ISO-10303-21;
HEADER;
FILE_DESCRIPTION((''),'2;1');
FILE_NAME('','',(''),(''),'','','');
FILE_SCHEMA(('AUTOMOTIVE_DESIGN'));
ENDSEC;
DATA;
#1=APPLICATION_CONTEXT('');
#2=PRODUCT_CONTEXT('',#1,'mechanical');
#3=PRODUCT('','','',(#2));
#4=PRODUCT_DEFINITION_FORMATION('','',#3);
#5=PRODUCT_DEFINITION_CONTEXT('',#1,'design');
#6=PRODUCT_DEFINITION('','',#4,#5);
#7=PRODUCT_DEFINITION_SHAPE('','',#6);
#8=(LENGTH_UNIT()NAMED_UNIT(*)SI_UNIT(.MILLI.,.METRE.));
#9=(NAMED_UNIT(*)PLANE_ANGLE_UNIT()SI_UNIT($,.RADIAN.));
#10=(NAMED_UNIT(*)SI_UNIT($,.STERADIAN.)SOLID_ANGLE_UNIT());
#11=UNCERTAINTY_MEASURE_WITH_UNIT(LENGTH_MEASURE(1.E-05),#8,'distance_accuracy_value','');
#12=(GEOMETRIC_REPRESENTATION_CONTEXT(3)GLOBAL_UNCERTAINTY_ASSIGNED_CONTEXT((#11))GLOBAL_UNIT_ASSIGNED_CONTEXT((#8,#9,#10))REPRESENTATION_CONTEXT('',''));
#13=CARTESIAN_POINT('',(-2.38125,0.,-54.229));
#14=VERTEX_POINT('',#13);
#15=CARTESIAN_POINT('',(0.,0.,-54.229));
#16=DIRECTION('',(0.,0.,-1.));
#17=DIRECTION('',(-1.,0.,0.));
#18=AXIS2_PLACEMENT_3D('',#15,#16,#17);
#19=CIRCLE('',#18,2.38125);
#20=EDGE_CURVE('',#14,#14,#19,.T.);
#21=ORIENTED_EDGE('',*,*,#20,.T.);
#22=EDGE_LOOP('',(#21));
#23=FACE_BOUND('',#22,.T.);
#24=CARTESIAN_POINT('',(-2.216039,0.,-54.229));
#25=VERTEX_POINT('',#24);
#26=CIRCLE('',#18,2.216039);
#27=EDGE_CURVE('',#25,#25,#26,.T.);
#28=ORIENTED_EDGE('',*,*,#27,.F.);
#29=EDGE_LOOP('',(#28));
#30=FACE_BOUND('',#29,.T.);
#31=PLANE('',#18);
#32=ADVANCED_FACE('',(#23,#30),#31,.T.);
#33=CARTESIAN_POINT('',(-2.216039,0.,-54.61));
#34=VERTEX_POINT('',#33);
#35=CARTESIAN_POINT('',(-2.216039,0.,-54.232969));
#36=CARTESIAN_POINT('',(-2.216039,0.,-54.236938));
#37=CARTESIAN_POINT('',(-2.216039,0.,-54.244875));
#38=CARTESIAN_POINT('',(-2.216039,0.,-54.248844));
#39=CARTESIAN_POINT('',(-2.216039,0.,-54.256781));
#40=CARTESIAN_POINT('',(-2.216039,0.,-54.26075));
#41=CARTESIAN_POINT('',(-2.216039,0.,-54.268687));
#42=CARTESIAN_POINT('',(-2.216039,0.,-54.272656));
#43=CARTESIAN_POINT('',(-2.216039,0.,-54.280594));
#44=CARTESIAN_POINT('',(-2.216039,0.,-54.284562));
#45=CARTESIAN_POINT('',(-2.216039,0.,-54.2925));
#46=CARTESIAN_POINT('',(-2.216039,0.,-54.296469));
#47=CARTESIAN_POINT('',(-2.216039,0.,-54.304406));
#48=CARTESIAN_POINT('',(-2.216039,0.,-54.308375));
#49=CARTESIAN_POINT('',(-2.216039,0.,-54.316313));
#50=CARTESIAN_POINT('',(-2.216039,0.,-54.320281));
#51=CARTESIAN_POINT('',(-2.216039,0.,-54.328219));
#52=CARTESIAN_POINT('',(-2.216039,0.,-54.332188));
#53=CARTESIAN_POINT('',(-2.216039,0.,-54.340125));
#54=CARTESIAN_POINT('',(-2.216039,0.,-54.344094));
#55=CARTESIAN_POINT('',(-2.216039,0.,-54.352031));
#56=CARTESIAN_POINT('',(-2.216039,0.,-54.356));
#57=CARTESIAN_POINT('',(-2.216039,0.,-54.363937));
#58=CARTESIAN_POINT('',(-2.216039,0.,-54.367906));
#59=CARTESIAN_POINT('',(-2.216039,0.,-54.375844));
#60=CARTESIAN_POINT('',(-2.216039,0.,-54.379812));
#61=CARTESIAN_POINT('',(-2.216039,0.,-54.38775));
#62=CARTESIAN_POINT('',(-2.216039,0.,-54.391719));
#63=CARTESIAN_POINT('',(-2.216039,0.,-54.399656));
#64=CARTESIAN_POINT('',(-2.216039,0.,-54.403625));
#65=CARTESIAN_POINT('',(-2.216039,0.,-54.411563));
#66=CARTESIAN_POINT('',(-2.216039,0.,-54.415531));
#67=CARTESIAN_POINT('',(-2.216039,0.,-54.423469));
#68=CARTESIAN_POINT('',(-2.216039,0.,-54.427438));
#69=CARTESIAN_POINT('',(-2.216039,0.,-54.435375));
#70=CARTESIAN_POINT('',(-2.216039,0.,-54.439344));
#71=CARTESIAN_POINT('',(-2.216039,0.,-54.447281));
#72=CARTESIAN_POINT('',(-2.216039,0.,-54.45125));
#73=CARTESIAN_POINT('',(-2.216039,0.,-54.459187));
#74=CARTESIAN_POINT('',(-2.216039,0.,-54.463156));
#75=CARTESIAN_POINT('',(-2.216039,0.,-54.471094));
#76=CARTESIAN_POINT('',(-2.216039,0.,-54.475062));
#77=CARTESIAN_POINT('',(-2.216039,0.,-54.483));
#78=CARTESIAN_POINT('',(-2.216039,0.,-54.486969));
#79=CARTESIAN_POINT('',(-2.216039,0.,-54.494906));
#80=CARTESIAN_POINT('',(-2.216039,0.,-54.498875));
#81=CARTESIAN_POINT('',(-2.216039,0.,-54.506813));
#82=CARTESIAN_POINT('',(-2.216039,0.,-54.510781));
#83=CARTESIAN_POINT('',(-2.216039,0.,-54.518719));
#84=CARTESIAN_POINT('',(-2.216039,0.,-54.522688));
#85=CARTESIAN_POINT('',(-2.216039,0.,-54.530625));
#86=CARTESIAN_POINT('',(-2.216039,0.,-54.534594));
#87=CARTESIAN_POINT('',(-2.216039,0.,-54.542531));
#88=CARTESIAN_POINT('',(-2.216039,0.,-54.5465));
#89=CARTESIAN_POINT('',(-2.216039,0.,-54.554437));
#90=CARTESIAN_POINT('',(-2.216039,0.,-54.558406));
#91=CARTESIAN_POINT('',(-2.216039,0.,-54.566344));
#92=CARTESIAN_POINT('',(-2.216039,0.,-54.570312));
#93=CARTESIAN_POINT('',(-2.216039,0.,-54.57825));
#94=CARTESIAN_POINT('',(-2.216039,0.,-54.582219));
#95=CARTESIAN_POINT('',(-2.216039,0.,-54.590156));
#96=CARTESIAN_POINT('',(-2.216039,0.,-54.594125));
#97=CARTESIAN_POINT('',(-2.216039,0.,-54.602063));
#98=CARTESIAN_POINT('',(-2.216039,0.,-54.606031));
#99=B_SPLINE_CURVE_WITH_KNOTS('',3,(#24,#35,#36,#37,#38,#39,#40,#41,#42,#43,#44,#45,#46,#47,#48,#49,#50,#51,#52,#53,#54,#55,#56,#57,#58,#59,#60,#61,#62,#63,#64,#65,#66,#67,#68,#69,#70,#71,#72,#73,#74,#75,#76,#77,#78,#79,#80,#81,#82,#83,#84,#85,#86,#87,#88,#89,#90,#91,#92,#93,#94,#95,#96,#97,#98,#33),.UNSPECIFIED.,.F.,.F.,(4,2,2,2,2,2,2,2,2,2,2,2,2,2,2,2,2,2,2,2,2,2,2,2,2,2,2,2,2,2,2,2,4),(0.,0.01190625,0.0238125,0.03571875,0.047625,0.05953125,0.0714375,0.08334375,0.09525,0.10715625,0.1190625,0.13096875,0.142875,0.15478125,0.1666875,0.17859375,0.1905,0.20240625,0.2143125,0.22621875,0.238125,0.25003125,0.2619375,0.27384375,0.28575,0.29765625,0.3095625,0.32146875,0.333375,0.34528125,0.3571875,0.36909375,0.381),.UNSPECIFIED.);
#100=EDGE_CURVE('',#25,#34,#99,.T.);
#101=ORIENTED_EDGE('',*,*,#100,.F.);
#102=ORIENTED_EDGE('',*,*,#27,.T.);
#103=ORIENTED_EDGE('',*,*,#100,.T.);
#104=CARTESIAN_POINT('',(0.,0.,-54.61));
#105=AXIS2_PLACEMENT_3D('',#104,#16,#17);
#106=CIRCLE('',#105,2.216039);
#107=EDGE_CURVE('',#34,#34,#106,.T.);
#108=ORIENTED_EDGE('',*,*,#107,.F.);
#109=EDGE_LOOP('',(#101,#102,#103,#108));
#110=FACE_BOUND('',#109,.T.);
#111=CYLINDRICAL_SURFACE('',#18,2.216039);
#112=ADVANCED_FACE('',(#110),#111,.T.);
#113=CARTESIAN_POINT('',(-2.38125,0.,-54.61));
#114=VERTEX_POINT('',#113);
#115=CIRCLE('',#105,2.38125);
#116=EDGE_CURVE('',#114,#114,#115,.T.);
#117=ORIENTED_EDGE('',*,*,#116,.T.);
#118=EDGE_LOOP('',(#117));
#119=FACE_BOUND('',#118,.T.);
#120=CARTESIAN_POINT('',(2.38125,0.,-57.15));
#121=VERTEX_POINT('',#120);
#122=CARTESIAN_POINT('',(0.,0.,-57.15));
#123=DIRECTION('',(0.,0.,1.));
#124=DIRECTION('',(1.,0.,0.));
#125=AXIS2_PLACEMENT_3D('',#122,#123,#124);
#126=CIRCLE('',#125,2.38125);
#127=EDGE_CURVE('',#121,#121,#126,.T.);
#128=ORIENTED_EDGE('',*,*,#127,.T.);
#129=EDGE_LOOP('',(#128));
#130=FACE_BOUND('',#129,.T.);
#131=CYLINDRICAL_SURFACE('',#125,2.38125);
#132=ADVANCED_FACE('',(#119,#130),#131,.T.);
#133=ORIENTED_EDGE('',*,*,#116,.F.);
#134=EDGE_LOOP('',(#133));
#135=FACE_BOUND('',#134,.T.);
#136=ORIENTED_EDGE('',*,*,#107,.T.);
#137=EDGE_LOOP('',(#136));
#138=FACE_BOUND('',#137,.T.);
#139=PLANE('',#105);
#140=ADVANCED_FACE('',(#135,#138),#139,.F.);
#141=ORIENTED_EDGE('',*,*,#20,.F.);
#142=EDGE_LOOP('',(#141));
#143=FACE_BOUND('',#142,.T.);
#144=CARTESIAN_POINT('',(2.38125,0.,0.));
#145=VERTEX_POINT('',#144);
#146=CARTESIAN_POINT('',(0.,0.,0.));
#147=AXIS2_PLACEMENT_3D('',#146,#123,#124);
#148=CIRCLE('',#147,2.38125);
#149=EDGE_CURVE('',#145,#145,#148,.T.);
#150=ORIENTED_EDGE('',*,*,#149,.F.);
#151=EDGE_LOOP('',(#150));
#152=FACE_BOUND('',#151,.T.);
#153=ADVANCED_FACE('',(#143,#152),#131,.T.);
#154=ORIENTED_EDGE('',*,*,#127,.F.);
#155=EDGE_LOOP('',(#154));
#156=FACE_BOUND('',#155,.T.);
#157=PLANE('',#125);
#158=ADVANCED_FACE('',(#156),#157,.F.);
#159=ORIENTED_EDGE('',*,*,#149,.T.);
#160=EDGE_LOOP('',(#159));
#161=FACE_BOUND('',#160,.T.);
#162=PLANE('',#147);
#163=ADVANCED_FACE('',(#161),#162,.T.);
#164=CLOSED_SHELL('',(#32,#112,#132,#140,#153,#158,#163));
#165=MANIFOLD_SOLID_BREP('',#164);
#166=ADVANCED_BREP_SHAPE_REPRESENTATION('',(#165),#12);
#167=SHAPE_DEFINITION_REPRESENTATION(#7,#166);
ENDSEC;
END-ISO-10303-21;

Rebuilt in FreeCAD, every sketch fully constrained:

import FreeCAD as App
import Part
import Sketcher

V = App.Vector
Q = App.Units.Quantity

doc = App.newDocument("Part")
body = doc.addObject("PartDesign::Body", "Body")

# Sketch on XY plane
sketch1 = body.newObject("Sketcher::SketchObject", "Sketch")
sketch1.AttachmentSupport = (doc.getObject("XY_Plane"), [""])
sketch1.MapMode = "FlatFace"
sketch1.addGeometry(Part.Circle(V(0, 0, 0), V(0, 0, 1), 2.4), False)
sketch1.addConstraint(Sketcher.Constraint("Coincident", 0, 3, -1, 1))
sketch1.addConstraint(Sketcher.Constraint("Diameter", 0, Q("0.1875 in")))
pad1 = body.newObject("PartDesign::Pad", "Pad")
pad1.Profile = sketch1
pad1.Length = Q("2.25 in")
pad1.Reversed = True

# Sketch on XY plane
sketch2 = body.newObject("Sketcher::SketchObject", "Sketch001")
sketch2.AttachmentSupport = (doc.getObject("XY_Plane"), [""])
sketch2.MapMode = "FlatFace"
sketch2.AttachmentOffset = App.Placement(V(0, 0, -2.135 * 25.4), App.Rotation())
sketch2.addGeometry(Part.Circle(V(0, 0, 0), V(0, 0, 1), 2.4), False)
sketch2.addGeometry(Part.Circle(V(0, 0, 0), V(0, 0, 1), 2.2), False)
sketch2.addConstraint(Sketcher.Constraint("Coincident", 0, 3, -1, 1))
sketch2.addConstraint(Sketcher.Constraint("Coincident", 1, 3, -1, 1))
sketch2.addConstraint(Sketcher.Constraint("Diameter", 0, Q("0.1875 in")))
sketch2.addConstraint(Sketcher.Constraint("Diameter", 1, Q("4.432079 mm")))
pocket1 = body.newObject("PartDesign::Pocket", "Pocket")
pocket1.Profile = sketch2
pocket1.Length = Q("0.015 in")

doc.recompute()
